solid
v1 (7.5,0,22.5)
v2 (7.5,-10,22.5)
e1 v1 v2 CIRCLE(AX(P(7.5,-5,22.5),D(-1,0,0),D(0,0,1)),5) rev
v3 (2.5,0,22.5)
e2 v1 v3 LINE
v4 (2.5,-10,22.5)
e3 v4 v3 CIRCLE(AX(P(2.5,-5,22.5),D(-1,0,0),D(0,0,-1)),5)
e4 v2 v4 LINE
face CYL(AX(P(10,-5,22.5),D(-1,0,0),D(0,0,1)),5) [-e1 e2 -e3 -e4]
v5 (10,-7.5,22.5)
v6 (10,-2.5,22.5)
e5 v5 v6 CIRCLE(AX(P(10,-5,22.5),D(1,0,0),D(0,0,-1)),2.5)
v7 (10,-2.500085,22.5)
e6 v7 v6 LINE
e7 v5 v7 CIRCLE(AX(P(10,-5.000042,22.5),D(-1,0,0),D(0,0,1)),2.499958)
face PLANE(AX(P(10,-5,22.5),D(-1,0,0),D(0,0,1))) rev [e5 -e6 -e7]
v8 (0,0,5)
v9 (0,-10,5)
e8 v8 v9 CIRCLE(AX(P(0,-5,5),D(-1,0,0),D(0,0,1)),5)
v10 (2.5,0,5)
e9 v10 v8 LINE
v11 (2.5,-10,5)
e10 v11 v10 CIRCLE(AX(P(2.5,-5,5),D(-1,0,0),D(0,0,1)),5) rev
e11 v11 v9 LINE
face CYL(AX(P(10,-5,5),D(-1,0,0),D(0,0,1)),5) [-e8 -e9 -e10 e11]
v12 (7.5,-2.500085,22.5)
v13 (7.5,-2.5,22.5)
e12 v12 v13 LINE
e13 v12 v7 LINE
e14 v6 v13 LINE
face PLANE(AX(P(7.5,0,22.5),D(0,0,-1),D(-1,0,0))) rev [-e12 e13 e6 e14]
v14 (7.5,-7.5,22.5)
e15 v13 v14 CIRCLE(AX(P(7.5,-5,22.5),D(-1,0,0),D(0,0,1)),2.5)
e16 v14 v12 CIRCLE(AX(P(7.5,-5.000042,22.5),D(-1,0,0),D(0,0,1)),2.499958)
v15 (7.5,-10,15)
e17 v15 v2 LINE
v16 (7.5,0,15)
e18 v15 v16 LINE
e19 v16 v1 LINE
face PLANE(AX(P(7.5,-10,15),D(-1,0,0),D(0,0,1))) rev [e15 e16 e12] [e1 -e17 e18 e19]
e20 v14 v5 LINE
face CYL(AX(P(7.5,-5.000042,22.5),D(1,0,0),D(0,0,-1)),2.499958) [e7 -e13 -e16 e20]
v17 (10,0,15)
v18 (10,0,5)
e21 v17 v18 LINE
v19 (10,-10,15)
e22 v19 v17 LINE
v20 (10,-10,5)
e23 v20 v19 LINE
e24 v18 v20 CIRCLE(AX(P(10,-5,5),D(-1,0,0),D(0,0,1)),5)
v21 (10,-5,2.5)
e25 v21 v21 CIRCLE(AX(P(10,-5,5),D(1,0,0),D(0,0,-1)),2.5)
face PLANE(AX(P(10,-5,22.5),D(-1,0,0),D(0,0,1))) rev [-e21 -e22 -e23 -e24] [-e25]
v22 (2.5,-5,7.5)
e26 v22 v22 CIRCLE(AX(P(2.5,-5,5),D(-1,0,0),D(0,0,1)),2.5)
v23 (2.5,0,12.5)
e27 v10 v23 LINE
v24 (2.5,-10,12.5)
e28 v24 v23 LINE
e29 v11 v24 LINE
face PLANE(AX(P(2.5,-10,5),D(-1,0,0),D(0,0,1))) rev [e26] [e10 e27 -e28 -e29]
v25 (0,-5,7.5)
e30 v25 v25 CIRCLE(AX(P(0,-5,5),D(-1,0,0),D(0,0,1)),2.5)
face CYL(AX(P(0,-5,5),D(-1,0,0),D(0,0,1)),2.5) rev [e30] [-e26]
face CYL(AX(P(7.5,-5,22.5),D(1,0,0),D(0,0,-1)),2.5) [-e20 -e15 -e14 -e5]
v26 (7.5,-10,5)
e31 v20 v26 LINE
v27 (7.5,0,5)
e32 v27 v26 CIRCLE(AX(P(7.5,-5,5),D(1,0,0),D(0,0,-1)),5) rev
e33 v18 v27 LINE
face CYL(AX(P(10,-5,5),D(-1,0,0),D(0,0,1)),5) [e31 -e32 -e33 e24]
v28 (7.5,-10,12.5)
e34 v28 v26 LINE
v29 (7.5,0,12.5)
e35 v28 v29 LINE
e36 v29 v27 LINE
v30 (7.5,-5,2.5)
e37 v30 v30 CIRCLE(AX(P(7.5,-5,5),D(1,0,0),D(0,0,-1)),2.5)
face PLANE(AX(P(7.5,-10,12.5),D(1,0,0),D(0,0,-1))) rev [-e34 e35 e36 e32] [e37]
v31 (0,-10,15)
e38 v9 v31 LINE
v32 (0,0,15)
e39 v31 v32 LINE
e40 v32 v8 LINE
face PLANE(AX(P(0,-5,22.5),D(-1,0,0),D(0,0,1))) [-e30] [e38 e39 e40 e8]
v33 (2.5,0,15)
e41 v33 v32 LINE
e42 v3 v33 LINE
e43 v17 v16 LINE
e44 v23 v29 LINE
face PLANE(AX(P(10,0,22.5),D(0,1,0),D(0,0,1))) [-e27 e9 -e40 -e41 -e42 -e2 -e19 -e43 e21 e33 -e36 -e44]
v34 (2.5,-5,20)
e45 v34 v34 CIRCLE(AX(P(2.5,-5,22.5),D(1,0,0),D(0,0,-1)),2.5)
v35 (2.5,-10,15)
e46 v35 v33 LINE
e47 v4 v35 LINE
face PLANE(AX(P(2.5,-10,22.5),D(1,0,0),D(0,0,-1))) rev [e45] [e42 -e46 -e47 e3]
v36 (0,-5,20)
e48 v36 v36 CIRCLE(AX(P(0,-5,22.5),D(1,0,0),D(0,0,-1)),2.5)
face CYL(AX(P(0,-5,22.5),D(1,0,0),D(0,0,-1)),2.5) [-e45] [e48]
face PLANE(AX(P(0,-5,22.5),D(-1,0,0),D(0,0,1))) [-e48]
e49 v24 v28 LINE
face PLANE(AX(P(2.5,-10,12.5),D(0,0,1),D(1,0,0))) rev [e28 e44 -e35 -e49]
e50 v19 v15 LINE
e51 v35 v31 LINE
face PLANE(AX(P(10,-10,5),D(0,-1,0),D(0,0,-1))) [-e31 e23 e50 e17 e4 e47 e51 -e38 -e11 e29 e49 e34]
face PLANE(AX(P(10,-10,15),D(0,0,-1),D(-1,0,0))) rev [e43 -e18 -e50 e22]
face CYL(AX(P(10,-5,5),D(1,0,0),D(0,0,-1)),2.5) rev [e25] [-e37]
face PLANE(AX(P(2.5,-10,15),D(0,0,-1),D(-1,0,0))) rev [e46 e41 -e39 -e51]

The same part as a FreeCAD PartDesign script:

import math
import FreeCAD as App
import Part
import Sketcher
from FreeCAD import Vector


def add_polygon(sketch, points):
    """Adds a closed chain of lines whose ends are joined by coincident constraints."""
    first, n = sketch.GeometryCount, len(points)
    for a, b in zip(points, points[1:] + points[:1]):
        sketch.addGeometry(Part.LineSegment(App.Vector(*a, 0), App.Vector(*b, 0)), False)
    for i in range(n):
        sketch.addConstraint(Sketcher.Constraint("Coincident", first + i, 2, first + (i + 1) % n, 1))

doc = App.newDocument("Part")
body = doc.addObject("PartDesign::Body", "Body")

# Sketch on YZ plane
sketch1 = body.newObject("Sketcher::SketchObject", "Sketch")
sketch1.AttachmentSupport = (doc.getObject("YZ_Plane"), [""])
sketch1.MapMode = "FlatFace"
sketch1.addGeometry([
    Part.LineSegment(Vector(0, 22, 0), Vector(0, 5, 0)),
    Part.ArcOfCircle(Part.Circle(Vector(-5, 5, 0), Vector(0, 0, 1), 5), math.radians(180), math.radians(360)),
    Part.LineSegment(Vector(-10, 5, 0), Vector(-10, 22, 0)),
    Part.ArcOfCircle(Part.Circle(Vector(-5, 22, 0), Vector(0, 0, 1), 5), math.radians(0), math.radians(180)),
], False)
sketch1.addConstraint([
    Sketcher.Constraint("Tangent", 0, 2, 1, 2),
    Sketcher.Constraint("Tangent", 1, 1, 2, 1),
    Sketcher.Constraint("Tangent", 2, 2, 3, 2),
    Sketcher.Constraint("Tangent", 3, 1, 0, 1),
    Sketcher.Constraint("Vertical", 0),
    Sketcher.Constraint("Vertical", 2),
    Sketcher.Constraint("PointOnObject", 0, 2, -2),
    Sketcher.Constraint("Radius", 1, 5.0),
    Sketcher.Constraint("DistanceY", 0, 2, 0, 1, 17.5),
    Sketcher.Constraint("DistanceY", -1, 1, 1, 3, 5.0),
])
pad1 = body.newObject("PartDesign::Pad", "Pad")
pad1.Profile = sketch1
pad1.Length = 10

# Sketch on XZ plane
sketch2 = body.newObject("Sketcher::SketchObject", "Sketch001")
sketch2.AttachmentSupport = (doc.getObject("XZ_Plane"), [""])
sketch2.MapMode = "FlatFace"
add_polygon(sketch2, [(2.5, 22.5), (2.5, 15), (0, 15), (0, 22.5)])  # lines 0-3
sketch2.addConstraint([
    Sketcher.Constraint("Vertical", 0),
    Sketcher.Constraint("Horizontal", 1),
    Sketcher.Constraint("Vertical", 2),
    Sketcher.Constraint("Horizontal", 3),
    Sketcher.Constraint("PointOnObject", 1, 2, -2),
    Sketcher.Constraint("DistanceX", 1, 2, 1, 1, 2.5),
    Sketcher.Constraint("DistanceY", 0, 2, 0, 1, 7.5),
    Sketcher.Constraint("DistanceY", -1, 1, 0, 2, 15.0),
])
pocket1 = body.newObject("PartDesign::Pocket", "Pocket")
pocket1.Profile = sketch2
pocket1.Type = "ThroughAll"
pocket1.Reversed = True

# Sketch on XZ plane
sketch3 = body.newObject("Sketcher::SketchObject", "Sketch002")
sketch3.AttachmentSupport = (doc.getObject("XZ_Plane"), [""])
sketch3.MapMode = "FlatFace"
add_polygon(sketch3, [(8, 12), (8, 5), (2, 5), (2, 12)])  # lines 0-3
sketch3.addConstraint([
    Sketcher.Constraint("Vertical", 0),
    Sketcher.Constraint("Horizontal", 1),
    Sketcher.Constraint("Vertical", 2),
    Sketcher.Constraint("Horizontal", 3),
    Sketcher.Constraint("DistanceX", 1, 2, 1, 1, 5.0),
    Sketcher.Constraint("DistanceY", 0, 2, 0, 1, 7.5),
    Sketcher.Constraint("DistanceY", -1, 1, 0, 2, 5.0),
    Sketcher.Constraint("DistanceX", -1, 1, 0, 2, 7.5),
])
pocket2 = body.newObject("PartDesign::Pocket", "Pocket001")
pocket2.Profile = sketch3
pocket2.Type = "ThroughAll"
pocket2.Reversed = True

# Sketch on XZ plane
sketch4 = body.newObject("Sketcher::SketchObject", "Sketch003")
sketch4.AttachmentSupport = (doc.getObject("XZ_Plane"), [""])
sketch4.MapMode = "FlatFace"
add_polygon(sketch4, [(10, 22.5), (10, 15), (7.5, 15), (7.5, 22.5)])  # lines 0-3
sketch4.addConstraint([
    Sketcher.Constraint("Vertical", 0),
    Sketcher.Constraint("Horizontal", 1),
    Sketcher.Constraint("Vertical", 2),
    Sketcher.Constraint("Horizontal", 3),
    Sketcher.Constraint("DistanceX", 1, 2, 1, 1, 2.5),
    Sketcher.Constraint("DistanceY", 0, 2, 0, 1, 7.5),
    Sketcher.Constraint("DistanceX", -1, 1, 0, 2, 10.0),
    Sketcher.Constraint("DistanceY", -1, 1, 0, 2, 15.0),
])
pocket3 = body.newObject("PartDesign::Pocket", "Pocket002")
pocket3.Profile = sketch4
pocket3.Type = "ThroughAll"
pocket3.Reversed = True

# Sketch on XY plane
sketch5 = body.newObject("Sketcher::SketchObject", "Sketch004")
sketch5.AttachmentSupport = (doc.getObject("XY_Plane"), [""])
sketch5.MapMode = "FlatFace"
sketch5.AttachmentOffset = App.Placement(Vector(0, 0, 22.5), App.Rotation())
add_polygon(sketch5, [(7.5, -2.5), (7.5, -5), (10, -5), (10, -2.5)])  # lines 0-3
sketch5.addGeometry(Part.LineSegment(Vector(7.5, -5, 0), Vector(10, -5, 0)), True)  # axis
sketch5.addConstraint([
    Sketcher.Constraint("Vertical", 0),
    Sketcher.Constraint("Horizontal", 1),
    Sketcher.Constraint("Vertical", 2),
    Sketcher.Constraint("Horizontal", 3),
    Sketcher.Constraint("Horizontal", 4),
    Sketcher.Constraint("Coincident", 4, 1, 0, 2),
    Sketcher.Constraint("Vertical", 2, 2, 4, 2),
    Sketcher.Constraint("Equal", 4, 0),
    Sketcher.Constraint("DistanceX", 1, 1, 1, 2, 2.5),
    Sketcher.Constraint("DistanceY", 0, 2, -1, 1, 5.0),
    Sketcher.Constraint("DistanceX", -1, 1, 1, 2, 10.0),
])
revolution = body.newObject("PartDesign::Revolution", "Revolution")
revolution.Profile = sketch5
revolution.ReferenceAxis = (sketch5, ["Axis0"])
revolution.Angle = 360

# Sketch on XY plane
sketch6 = body.newObject("Sketcher::SketchObject", "Sketch005")
sketch6.AttachmentSupport = (doc.getObject("XY_Plane"), [""])
sketch6.MapMode = "FlatFace"
sketch6.AttachmentOffset = App.Placement(Vector(0, 0, 22.5), App.Rotation())
add_polygon(sketch6, [(0, -2.5), (0, -5), (2.5, -5), (2.5, -2.5)])  # lines 0-3
sketch6.addGeometry(Part.LineSegment(Vector(0, -5, 0), Vector(2.5, -5, 0)), True)  # axis
sketch6.addConstraint([
    Sketcher.Constraint("Vertical", 0),
    Sketcher.Constraint("Horizontal", 1),
    Sketcher.Constraint("Vertical", 2),
    Sketcher.Constraint("Horizontal", 3),
    Sketcher.Constraint("Horizontal", 4),
    Sketcher.Constraint("Coincident", 4, 1, 0, 2),
    Sketcher.Constraint("PointOnObject", 0, 2, -2),
    Sketcher.Constraint("Vertical", 2, 2, 4, 2),
    Sketcher.Constraint("Equal", 4, 0),
    Sketcher.Constraint("DistanceX", 1, 1, 1, 2, 2.5),
    Sketcher.Constraint("DistanceY", 0, 2, -1, 1, 5.0),
])
revolution2 = body.newObject("PartDesign::Revolution", "Revolution001")
revolution2.Profile = sketch6
revolution2.ReferenceAxis = (sketch6, ["Axis0"])
revolution2.Angle = 360

# Sketch on YZ plane
sketch7 = body.newObject("Sketcher::SketchObject", "Sketch006")
sketch7.AttachmentSupport = (doc.getObject("YZ_Plane"), [""])
sketch7.MapMode = "FlatFace"
sketch7.addGeometry(Part.Circle(Vector(-5, 5, 0), Vector(0, 0, 1), 2.5), False)
sketch7.addConstraint([
    Sketcher.Constraint("Diameter", 0, 5.0),
    Sketcher.Constraint("DistanceX", 0, 3, -1, 1, 5.0),
    Sketcher.Constraint("DistanceY", -1, 1, 0, 3, 5.0),
])
doc.recompute()
hole = body.newObject("PartDesign::Hole", "Hole")
hole.Profile = sketch7
hole.ThreadType = "None"
hole.Diameter = 5
hole.DepthType = "Dimension"
hole.Depth = 2.5
hole.DrillPoint = "Flat"
hole.Reversed = True

# Sketch on YZ plane
sketch8 = body.newObject("Sketcher::SketchObject", "Sketch007")
sketch8.AttachmentSupport = (doc.getObject("YZ_Plane"), [""])
sketch8.MapMode = "FlatFace"
sketch8.AttachmentOffset = App.Placement(Vector(0, 0, 10), App.Rotation())
sketch8.addGeometry(Part.Circle(Vector(-5, 5, 0), Vector(0, 0, 1), 2.5), False)
sketch8.addConstraint([
    Sketcher.Constraint("Diameter", 0, 5.0),
    Sketcher.Constraint("DistanceX", 0, 3, -1, 1, 5.0),
    Sketcher.Constraint("DistanceY", -1, 1, 0, 3, 5.0),
])
doc.recompute()
hole2 = body.newObject("PartDesign::Hole", "Hole001")
hole2.Profile = sketch8
hole2.ThreadType = "None"
hole2.Diameter = 5
hole2.DepthType = "Dimension"
hole2.Depth = 2.5
hole2.DrillPoint = "Flat"

# Sketch on XZ plane
sketch9 = body.newObject("Sketcher::SketchObject", "Sketch008")
sketch9.AttachmentSupport = (doc.getObject("XZ_Plane"), [""])
sketch9.MapMode = "FlatFace"
sketch9.AttachmentOffset = App.Placement(Vector(0, 0, 10), App.Rotation())
add_polygon(sketch9, [(2, 5), (2, -1), (8, -1), (8, 5)])  # lines 0-3
sketch9.addConstraint([
    Sketcher.Constraint("Vertical", 0),
    Sketcher.Constraint("Horizontal", 1),
    Sketcher.Constraint("Vertical", 2),
    Sketcher.Constraint("Horizontal", 3),
    Sketcher.Constraint("DistanceX", 1, 1, 1, 2, 5.0),
    Sketcher.Constraint("DistanceY", -1, 1, 2, 2, 5.0),
    Sketcher.Constraint("DistanceX", -1, 1, 0, 2, 2.5),
    Sketcher.Constraint("DistanceY", 0, 2, 0, 1, 5.816268),
])
pocket4 = body.newObject("PartDesign::Pocket", "Pocket003")
pocket4.Profile = sketch9
pocket4.Length = 10

# Sketch on YZ plane
sketch10 = body.newObject("Sketcher::SketchObject", "Sketch009")
sketch10.AttachmentSupport = (doc.getObject("YZ_Plane"), [""])
sketch10.MapMode = "FlatFace"
sketch10.AttachmentOffset = App.Placement(Vector(0, 0, 10), App.Rotation())
sketch10.addGeometry([
    Part.LineSegment(Vector(-10, 22.5, 0), Vector(-7.5, 22.5, 0)),
    Part.ArcOfCircle(Part.Circle(Vector(-5, 22.5, 0), Vector(0, 0, 1), 2.5), math.radians(0), math.radians(180)),
    Part.LineSegment(Vector(-2.5, 22.5, 0), Vector(0, 22.5, 0)),
    Part.ArcOfCircle(Part.Circle(Vector(-5, 22.5, 0), Vector(0, 0, 1), 5), math.radians(0), math.radians(180)),
], False)
sketch10.addConstraint([
    Sketcher.Constraint("Coincident", 0, 2, 1, 2),
    Sketcher.Constraint("Coincident", 1, 1, 2, 1),
    Sketcher.Constraint("Coincident", 2, 2, 3, 1),
    Sketcher.Constraint("Coincident", 3, 2, 0, 1),
    Sketcher.Constraint("Horizontal", 0),
    Sketcher.Constraint("Horizontal", 2),
    Sketcher.Constraint("Coincident", 3, 3, 1, 3),
    Sketcher.Constraint("PointOnObject", 2, 2, -2),
    Sketcher.Constraint("Horizontal", 3, 3, 0, 2),
    Sketcher.Constraint("Horizontal", 0, 2, 1, 1),
    Sketcher.Constraint("DistanceY", -1, 1, 1, 3, 22.5),
    Sketcher.Constraint("DistanceX", 0, 2, -1, 1, 7.5),
    Sketcher.Constraint("Radius", 1, 2.499958),
])
pocket5 = body.newObject("PartDesign::Pocket", "Pocket004")
pocket5.Profile = sketch10
pocket5.Length = 2.5

# Sketch on YZ plane
sketch11 = body.newObject("Sketcher::SketchObject", "Sketch010")
sketch11.AttachmentSupport = (doc.getObject("YZ_Plane"), [""])
sketch11.MapMode = "FlatFace"
sketch11.addGeometry([
    Part.LineSegment(Vector(0, 22.5, 0), Vector(-2.5, 22.5, 0)),
    Part.ArcOfCircle(Part.Circle(Vector(-5, 22.5, 0), Vector(0, 0, 1), 2.5), math.radians(0), math.radians(180)),
    Part.LineSegment(Vector(-7.5, 22.5, 0), Vector(-10, 22.5, 0)),
    Part.ArcOfCircle(Part.Circle(Vector(-5, 22.5, 0), Vector(0, 0, 1), 5), math.radians(0), math.radians(180)),
], False)
sketch11.addConstraint([
    Sketcher.Constraint("Coincident", 0, 2, 1, 1),
    Sketcher.Constraint("Coincident", 1, 2, 2, 1),
    Sketcher.Constraint("Coincident", 2, 2, 3, 2),
    Sketcher.Constraint("Coincident", 3, 1, 0, 1),
    Sketcher.Constraint("Horizontal", 0),
    Sketcher.Constraint("Horizontal", 2),
    Sketcher.Constraint("Coincident", 3, 3, 1, 3),
    Sketcher.Constraint("PointOnObject", 3, 1, -2),
    Sketcher.Constraint("Horizontal", 3, 3, 0, 2),
    Sketcher.Constraint("Horizontal", 0, 2, 1, 2),
    Sketcher.Constraint("Radius", 3, 5.0),
    Sketcher.Constraint("Radius", 1, 2.5),
    Sketcher.Constraint("DistanceY", -1, 1, 1, 3, 22.5),
])
pocket6 = body.newObject("PartDesign::Pocket", "Pocket005")
pocket6.Profile = sketch11
pocket6.Length = 2.5
pocket6.Reversed = True

doc.recompute()
